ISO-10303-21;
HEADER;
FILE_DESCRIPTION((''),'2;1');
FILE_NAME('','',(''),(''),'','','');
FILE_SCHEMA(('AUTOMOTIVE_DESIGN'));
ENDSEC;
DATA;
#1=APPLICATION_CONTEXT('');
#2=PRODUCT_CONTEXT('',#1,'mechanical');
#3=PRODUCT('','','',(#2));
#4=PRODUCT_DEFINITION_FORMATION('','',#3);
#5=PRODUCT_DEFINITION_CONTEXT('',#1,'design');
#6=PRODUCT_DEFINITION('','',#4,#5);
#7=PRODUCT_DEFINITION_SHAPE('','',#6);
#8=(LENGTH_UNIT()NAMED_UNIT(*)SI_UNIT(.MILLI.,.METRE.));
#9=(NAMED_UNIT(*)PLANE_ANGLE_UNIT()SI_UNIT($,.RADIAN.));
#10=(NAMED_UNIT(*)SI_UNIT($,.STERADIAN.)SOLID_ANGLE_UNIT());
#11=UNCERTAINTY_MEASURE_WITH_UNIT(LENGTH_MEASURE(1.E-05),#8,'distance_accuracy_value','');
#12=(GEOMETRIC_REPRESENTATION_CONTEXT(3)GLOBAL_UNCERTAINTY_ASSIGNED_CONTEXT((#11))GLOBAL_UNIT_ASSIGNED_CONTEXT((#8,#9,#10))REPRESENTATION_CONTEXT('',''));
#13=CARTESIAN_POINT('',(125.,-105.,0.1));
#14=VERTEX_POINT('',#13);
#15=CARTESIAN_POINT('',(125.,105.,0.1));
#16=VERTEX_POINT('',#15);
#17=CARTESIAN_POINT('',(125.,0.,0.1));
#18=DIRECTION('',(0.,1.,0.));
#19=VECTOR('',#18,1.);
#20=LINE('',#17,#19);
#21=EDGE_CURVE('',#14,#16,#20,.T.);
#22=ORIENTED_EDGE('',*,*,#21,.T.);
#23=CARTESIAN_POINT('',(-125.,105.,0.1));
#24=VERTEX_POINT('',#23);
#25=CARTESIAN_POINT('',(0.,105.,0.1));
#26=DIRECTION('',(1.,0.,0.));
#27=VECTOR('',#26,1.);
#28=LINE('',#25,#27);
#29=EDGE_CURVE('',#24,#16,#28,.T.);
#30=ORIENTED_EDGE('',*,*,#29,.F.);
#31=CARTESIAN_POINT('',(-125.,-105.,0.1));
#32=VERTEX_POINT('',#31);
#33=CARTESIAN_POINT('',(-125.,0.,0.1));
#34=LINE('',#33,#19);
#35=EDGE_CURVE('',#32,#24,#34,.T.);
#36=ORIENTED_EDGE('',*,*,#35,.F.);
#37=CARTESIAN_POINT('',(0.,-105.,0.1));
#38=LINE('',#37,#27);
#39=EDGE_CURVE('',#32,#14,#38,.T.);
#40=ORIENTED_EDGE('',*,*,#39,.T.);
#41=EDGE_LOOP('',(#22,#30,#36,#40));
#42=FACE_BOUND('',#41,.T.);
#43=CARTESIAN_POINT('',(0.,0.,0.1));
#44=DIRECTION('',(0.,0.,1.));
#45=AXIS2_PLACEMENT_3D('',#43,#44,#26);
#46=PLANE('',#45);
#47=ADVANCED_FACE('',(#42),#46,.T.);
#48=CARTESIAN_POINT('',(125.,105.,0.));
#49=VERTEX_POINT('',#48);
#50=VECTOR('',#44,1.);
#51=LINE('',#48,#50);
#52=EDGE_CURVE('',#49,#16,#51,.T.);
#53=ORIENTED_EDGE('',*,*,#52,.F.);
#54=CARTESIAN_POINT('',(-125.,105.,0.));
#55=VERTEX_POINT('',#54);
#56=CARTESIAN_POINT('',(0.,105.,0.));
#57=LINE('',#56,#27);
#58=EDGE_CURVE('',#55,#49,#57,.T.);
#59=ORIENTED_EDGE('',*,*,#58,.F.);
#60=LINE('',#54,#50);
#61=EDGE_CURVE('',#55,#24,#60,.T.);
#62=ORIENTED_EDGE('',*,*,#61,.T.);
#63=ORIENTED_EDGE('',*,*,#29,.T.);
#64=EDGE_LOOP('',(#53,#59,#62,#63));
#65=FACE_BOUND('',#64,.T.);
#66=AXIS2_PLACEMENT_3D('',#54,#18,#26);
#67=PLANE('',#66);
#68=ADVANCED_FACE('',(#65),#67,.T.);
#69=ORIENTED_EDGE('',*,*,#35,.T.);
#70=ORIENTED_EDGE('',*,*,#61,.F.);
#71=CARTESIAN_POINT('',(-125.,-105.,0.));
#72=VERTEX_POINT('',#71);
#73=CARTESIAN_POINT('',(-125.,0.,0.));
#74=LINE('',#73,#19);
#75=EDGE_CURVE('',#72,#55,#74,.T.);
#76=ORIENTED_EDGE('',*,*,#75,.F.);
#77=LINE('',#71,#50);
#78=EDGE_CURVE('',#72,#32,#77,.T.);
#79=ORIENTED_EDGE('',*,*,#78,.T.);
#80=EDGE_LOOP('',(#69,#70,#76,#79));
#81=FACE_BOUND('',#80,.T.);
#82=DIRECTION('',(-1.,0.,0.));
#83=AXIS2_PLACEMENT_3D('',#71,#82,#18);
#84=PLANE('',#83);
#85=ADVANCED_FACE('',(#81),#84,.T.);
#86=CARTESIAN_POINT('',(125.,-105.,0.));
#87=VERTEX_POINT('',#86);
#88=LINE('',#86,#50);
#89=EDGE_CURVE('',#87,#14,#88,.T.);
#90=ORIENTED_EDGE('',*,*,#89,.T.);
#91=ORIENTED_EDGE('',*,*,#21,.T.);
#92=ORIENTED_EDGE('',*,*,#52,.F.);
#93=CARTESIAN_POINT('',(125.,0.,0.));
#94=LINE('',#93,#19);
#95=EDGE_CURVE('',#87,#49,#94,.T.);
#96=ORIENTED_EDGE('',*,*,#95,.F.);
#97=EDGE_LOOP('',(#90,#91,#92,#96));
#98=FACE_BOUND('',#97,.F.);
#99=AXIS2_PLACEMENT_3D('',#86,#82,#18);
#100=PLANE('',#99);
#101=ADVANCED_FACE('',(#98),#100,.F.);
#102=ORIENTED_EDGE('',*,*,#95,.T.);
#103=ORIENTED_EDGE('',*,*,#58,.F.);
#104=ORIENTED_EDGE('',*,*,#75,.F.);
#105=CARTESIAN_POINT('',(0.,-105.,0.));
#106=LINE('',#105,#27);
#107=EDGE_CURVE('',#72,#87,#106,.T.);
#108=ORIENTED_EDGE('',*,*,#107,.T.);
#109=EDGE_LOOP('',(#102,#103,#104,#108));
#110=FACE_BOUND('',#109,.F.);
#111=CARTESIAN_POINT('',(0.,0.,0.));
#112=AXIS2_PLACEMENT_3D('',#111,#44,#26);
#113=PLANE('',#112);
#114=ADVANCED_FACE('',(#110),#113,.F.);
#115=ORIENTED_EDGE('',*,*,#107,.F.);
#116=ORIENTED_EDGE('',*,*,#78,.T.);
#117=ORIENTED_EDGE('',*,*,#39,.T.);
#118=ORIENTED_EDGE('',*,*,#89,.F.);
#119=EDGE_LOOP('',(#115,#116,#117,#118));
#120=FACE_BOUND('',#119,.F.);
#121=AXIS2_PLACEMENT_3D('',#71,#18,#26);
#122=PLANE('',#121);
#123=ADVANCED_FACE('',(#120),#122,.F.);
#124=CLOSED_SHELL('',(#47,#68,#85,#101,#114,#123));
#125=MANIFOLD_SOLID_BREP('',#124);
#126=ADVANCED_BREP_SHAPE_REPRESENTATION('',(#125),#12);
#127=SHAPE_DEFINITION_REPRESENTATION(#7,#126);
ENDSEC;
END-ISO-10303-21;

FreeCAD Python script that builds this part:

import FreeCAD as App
import Part
import Sketcher
from FreeCAD import Vector
Q = App.Units.Quantity

doc = App.newDocument("Part")
params = doc.addObject("Spreadsheet::Sheet", "Params")
for row, (alias, value) in enumerate([
    ("sketch1_width", "250 mm"),
    ("sketch1_height", "210 mm"),
    ("pad1_length", "0.1 mm"),
], start=1):
    params.set(f"A{row}", alias)
    params.set(f"B{row}", "=" + value)
    params.setAlias(f"B{row}", alias)

body = doc.addObject("PartDesign::Body", "Body")

# Sketch on XY plane
sketch1 = doc.addObject("Sketcher::SketchObject", "Sketch")
body.addObject(sketch1)
sketch1.AttachmentSupport = (doc.XY_Plane, [""])
sketch1.MapMode = "FlatFace"
sketch1.addGeometry(Part.LineSegment(Vector(-125, 105, 0), Vector(-125, -105, 0)), False)
sketch1.addGeometry(Part.LineSegment(Vector(-125, -105, 0), Vector(125, -105, 0)), False)
sketch1.addGeometry(Part.LineSegment(Vector(125, -105, 0), Vector(125, 105, 0)), False)
sketch1.addGeometry(Part.LineSegment(Vector(125, 105, 0), Vector(-125, 105, 0)), False)
sketch1.addConstraint(Sketcher.Constraint("Coincident", 0, 2, 1, 1))
sketch1.addConstraint(Sketcher.Constraint("Coincident", 1, 2, 2, 1))
sketch1.addConstraint(Sketcher.Constraint("Coincident", 2, 2, 3, 1))
sketch1.addConstraint(Sketcher.Constraint("Coincident", 3, 2, 0, 1))
sketch1.addConstraint(Sketcher.Constraint("Vertical", 0))
sketch1.addConstraint(Sketcher.Constraint("Horizontal", 1))
sketch1.addConstraint(Sketcher.Constraint("Vertical", 2))
sketch1.addConstraint(Sketcher.Constraint("Horizontal", 3))
sketch1.addConstraint(Sketcher.Constraint("Symmetric", 0, 2, 2, 2, -1, 1))
sketch1.addConstraint(Sketcher.Constraint("DistanceX", 1, 1, 1, 2, Q("250 mm")))
sketch1.addConstraint(Sketcher.Constraint("DistanceY", 0, 2, 0, 1, Q("210 mm")))
sketch1.setExpression("Constraints[9]", "Params.sketch1_width")
sketch1.setExpression("Constraints[10]", "Params.sketch1_height")
pad1 = doc.addObject("PartDesign::Pad", "Pad")
body.addObject(pad1)
pad1.Profile = sketch1
pad1.setExpression("Length", "Params.pad1_length")

doc.recompute()
